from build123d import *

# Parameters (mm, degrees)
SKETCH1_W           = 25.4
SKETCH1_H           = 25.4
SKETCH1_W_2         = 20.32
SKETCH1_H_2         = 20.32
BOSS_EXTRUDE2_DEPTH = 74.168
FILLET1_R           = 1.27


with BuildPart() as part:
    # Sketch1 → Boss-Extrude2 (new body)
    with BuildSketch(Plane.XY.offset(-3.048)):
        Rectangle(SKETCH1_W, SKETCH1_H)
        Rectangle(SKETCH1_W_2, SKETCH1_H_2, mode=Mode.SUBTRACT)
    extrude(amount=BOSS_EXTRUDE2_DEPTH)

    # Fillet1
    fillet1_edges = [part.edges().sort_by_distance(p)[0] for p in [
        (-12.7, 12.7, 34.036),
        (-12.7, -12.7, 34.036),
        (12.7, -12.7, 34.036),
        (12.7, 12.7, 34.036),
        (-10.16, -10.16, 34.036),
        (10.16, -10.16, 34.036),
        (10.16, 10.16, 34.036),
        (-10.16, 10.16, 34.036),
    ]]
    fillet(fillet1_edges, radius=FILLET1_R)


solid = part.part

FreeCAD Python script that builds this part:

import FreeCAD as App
import Part
import Sketcher
Q = App.Units.Quantity


def edges_at(feature, points):
    """Names of the edges that pass closest to the given points."""
    edges = feature.Shape.Edges
    near = lambda p: min(range(len(edges)), key=lambda i: edges[i].distToShape(Part.Vertex(*p))[0])
    return sorted({f"Edge{near(p) + 1}" for p in points})


def add_polygon(sketch, points):
    """Adds a closed chain of lines whose ends are joined by coincident constraints."""
    first, n = sketch.GeometryCount, len(points)
    for a, b in zip(points, points[1:] + points[:1]):
        sketch.addGeometry(Part.LineSegment(App.Vector(*a, 0), App.Vector(*b, 0)), False)
    for i in range(n):
        sketch.addConstraint(Sketcher.Constraint("Coincident", first + i, 2, first + (i + 1) % n, 1))

doc = App.newDocument("Part")
params = doc.addObject("Spreadsheet::Sheet", "Params")
for row, (alias, value) in enumerate([
    ("sketch1_width", "1 in"),
    ("sketch1_width2", "0.8 in"),
    ("pad1_length", "2.92 in"),
    ("fillet_radius", "0.05 in"),
], start=1):
    params.set(f"A{row}", alias)
    params.set(f"B{row}", "=" + value)
    params.setAlias(f"B{row}", alias)

body = doc.addObject("PartDesign::Body", "Body")

sketch1 = doc.addObject("Sketcher::SketchObject", "Sketch")
body.addObject(sketch1)
sketch1.AttachmentSupport = (doc.XY_Plane, [""])
sketch1.MapMode = "FlatFace"
sketch1.AttachmentOffset = App.Placement(App.Vector(0, 0, -0.12 * 25.4), App.Rotation())
add_polygon(sketch1, [(-13, 13), (-13, -13), (13, -13), (13, 13)])
add_polygon(sketch1, [(10, -10), (-10, -10), (-10, 10), (10, 10)])
sketch1.addConstraint(Sketcher.Constraint("Vertical", 0))
sketch1.addConstraint(Sketcher.Constraint("Horizontal", 1))
sketch1.addConstraint(Sketcher.Constraint("Vertical", 2))
sketch1.addConstraint(Sketcher.Constraint("Horizontal", 3))
sketch1.addConstraint(Sketcher.Constraint("Horizontal", 4))
sketch1.addConstraint(Sketcher.Constraint("Vertical", 5))
sketch1.addConstraint(Sketcher.Constraint("Horizontal", 6))
sketch1.addConstraint(Sketcher.Constraint("Vertical", 7))
sketch1.addConstraint(Sketcher.Constraint("Symmetric", 0, 2, 2, 2, -1, 1))
sketch1.addConstraint(Sketcher.Constraint("Symmetric", 4, 2, 6, 2, -1, 1))
sketch1.addConstraint(Sketcher.Constraint("Equal", 3, 0))
sketch1.addConstraint(Sketcher.Constraint("Equal", 6, 5))
sketch1.addConstraint(Sketcher.Constraint("DistanceX", 1, 1, 1, 2, Q("1 in")))
sketch1.addConstraint(Sketcher.Constraint("DistanceX", 4, 2, 4, 1, Q("0.8 in")))
sketch1.setExpression("Constraints[20]", "Params.sketch1_width")
sketch1.setExpression("Constraints[21]", "Params.sketch1_width2")
pad1 = doc.addObject("PartDesign::Pad", "Pad")
body.addObject(pad1)
pad1.Profile = sketch1
pad1.setExpression("Length", "Params.pad1_length")
doc.recompute()

fillet = doc.addObject("PartDesign::Fillet", "Fillet")
body.addObject(fillet)
fillet.Base = (pad1, edges_at(pad1, [
    (-12.7, 12.7, 34.036),
    (-12.7, -12.7, 34.036),
    (12.7, -12.7, 34.036),
    (12.7, 12.7, 34.036),
    (-10.16, -10.16, 34.036),
    (10.16, -10.16, 34.036),
    (10.16, 10.16, 34.036),
    (-10.16, 10.16, 34.036),
]))
fillet.setExpression("Radius", "Params.fillet_radius")

doc.recompute()
